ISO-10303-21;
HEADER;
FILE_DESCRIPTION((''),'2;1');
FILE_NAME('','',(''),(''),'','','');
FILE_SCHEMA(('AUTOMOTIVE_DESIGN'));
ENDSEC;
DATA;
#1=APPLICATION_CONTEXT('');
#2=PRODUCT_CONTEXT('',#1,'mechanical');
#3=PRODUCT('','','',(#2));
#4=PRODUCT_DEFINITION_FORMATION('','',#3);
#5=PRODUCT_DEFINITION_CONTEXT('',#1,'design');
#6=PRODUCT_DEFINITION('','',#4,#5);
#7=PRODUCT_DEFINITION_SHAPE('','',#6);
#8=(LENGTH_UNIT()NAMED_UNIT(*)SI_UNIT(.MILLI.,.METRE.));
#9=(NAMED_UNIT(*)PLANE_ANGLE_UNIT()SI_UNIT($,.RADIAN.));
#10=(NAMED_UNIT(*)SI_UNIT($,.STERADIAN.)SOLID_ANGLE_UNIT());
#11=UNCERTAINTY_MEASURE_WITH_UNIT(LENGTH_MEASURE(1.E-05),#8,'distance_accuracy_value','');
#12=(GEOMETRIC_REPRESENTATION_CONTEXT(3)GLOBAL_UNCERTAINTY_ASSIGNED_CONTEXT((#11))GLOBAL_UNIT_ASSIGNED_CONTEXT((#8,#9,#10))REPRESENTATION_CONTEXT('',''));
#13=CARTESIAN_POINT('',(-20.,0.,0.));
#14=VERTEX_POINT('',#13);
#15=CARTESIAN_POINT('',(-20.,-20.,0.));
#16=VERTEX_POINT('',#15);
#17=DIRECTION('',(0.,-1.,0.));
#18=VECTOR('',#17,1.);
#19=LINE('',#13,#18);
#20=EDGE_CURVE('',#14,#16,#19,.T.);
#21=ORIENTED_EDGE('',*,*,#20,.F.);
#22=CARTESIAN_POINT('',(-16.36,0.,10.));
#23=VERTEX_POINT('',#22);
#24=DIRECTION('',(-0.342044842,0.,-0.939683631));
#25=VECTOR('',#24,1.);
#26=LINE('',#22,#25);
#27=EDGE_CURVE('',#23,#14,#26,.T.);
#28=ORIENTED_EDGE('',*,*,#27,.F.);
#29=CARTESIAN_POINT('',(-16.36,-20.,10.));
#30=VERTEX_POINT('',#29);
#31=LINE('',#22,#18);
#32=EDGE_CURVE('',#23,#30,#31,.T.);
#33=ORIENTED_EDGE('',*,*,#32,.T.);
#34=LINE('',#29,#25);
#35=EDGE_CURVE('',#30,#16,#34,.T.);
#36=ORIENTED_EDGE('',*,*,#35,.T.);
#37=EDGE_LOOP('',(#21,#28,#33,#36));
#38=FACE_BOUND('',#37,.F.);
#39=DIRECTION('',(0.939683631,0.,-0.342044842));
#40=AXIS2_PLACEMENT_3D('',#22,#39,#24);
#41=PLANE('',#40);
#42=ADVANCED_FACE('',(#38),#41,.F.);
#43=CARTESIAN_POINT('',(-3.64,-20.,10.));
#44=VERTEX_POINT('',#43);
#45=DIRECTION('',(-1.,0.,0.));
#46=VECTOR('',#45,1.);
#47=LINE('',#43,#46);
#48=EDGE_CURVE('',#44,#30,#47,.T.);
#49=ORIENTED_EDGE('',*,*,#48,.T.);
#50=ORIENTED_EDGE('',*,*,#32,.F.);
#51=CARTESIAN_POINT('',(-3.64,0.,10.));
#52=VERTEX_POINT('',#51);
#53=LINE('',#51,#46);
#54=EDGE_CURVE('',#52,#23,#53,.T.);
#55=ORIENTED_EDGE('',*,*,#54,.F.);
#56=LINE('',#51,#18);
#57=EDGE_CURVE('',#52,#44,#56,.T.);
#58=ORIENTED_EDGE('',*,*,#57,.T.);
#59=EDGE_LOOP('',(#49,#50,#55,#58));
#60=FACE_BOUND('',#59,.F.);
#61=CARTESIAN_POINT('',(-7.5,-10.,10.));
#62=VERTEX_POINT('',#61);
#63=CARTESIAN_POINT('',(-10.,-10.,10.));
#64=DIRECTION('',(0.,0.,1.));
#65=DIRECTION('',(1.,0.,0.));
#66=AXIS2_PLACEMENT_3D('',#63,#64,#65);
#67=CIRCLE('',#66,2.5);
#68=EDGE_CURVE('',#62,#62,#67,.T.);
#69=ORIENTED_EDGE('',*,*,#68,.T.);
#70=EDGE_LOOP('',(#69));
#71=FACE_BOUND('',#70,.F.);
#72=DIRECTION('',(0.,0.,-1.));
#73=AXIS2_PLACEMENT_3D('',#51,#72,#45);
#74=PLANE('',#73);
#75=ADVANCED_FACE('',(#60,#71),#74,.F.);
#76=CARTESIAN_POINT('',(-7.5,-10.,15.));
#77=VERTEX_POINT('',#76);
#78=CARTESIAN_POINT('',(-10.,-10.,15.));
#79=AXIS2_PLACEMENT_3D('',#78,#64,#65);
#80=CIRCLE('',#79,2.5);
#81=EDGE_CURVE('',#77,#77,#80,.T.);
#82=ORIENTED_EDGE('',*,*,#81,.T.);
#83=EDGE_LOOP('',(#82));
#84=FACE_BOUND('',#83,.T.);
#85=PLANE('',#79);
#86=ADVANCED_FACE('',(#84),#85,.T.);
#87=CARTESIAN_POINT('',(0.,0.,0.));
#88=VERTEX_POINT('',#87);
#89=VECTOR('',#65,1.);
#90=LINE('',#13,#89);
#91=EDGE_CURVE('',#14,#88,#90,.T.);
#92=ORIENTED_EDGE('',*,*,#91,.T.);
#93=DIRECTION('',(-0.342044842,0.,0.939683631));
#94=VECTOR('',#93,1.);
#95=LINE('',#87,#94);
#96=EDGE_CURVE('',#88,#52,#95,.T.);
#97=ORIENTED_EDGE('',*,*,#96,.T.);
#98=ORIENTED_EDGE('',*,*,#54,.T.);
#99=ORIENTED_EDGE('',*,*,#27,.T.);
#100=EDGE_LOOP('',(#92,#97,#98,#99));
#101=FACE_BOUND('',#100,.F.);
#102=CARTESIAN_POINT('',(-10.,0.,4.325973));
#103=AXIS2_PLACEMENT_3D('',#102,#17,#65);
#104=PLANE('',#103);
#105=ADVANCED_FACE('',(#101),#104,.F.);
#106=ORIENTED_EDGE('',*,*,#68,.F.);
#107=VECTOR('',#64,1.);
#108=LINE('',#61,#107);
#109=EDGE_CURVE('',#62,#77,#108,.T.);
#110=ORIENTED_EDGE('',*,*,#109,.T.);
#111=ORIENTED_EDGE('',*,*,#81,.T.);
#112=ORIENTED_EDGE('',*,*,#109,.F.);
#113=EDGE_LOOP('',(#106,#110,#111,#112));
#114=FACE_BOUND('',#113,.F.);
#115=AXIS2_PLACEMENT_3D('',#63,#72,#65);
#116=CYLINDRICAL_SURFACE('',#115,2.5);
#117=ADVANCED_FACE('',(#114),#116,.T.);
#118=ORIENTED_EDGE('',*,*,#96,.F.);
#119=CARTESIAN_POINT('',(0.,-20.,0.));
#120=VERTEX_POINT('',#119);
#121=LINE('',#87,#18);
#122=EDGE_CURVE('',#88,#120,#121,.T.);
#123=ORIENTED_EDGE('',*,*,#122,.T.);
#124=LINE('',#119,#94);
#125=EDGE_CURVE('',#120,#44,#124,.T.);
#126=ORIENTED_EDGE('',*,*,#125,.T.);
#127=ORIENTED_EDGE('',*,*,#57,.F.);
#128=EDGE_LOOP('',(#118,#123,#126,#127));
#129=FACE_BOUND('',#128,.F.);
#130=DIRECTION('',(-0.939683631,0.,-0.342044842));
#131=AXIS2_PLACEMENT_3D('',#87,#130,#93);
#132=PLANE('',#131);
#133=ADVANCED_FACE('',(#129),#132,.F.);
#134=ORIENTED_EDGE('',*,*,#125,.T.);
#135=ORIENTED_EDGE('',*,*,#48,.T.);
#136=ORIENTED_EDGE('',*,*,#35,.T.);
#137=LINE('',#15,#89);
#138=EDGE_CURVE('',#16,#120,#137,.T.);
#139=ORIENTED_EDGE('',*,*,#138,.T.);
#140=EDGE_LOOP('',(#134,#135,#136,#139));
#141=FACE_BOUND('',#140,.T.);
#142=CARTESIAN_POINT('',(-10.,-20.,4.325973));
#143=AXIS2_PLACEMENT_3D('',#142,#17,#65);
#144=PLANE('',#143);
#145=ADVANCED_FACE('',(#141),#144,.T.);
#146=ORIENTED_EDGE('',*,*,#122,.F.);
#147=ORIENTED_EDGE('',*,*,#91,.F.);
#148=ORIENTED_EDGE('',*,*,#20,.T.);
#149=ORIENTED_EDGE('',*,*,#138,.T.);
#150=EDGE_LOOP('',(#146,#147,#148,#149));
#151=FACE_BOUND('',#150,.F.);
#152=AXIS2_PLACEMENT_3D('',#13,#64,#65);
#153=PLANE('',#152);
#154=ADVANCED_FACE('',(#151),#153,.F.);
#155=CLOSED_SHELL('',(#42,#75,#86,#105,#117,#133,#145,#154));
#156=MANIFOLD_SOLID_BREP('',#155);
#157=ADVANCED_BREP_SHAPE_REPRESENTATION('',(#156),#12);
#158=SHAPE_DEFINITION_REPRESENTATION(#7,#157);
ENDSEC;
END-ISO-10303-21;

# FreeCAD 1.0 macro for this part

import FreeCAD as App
import Part
import Sketcher

doc = App.newDocument("Part")
body = doc.addObject("PartDesign::Body", "Body")

sketch1 = body.newObject("Sketcher::SketchObject", "Sketch")
sketch1.AttachmentSupport = (doc.getObject("XZ_Plane"), [""])
sketch1.MapMode = "FlatFace"
sketch1.addGeometry([
    Part.LineSegment(App.Vector(-20, 0, 0), App.Vector(0, 0, 0)),
    Part.LineSegment(App.Vector(0, 0, 0), App.Vector(-4, 10, 0)),
    Part.LineSegment(App.Vector(-4, 10, 0), App.Vector(-16, 10, 0)),
    Part.LineSegment(App.Vector(-16, 10, 0), App.Vector(-20, 0, 0)),
], False)
sketch1.addConstraint([
    Sketcher.Constraint("Coincident", 0, 2, 1, 1),
    Sketcher.Constraint("Coincident", 1, 2, 2, 1),
    Sketcher.Constraint("Coincident", 2, 2, 3, 1),
    Sketcher.Constraint("Coincident", 3, 2, 0, 1),
    Sketcher.Constraint("Horizontal", 0),
    Sketcher.Constraint("Horizontal", 2),
    Sketcher.Constraint("Coincident", 0, 2, -1, 1),
    Sketcher.Constraint("Equal", 1, 3),
    Sketcher.Constraint("DistanceX", 0, 1, 0, 2, 20.0),
    Sketcher.Constraint("DistanceY", -1, 1, 1, 2, 10.0),
    Sketcher.Constraint("DistanceX", 2, 2, 2, 1, 12.72),
])
pad1 = body.newObject("PartDesign::Pad", "Pad")
pad1.Profile = sketch1
pad1.Length = 20

sketch2 = body.newObject("Sketcher::SketchObject", "Sketch001")
sketch2.AttachmentSupport = (doc.getObject("XY_Plane"), [""])
sketch2.MapMode = "FlatFace"
sketch2.AttachmentOffset = App.Placement(App.Vector(0, 0, 10), App.Rotation())
sketch2.addGeometry(Part.Circle(App.Vector(-10, -10, 0), App.Vector(0, 0, 1), 2.5), False)
sketch2.addConstraint([
    Sketcher.Constraint("Diameter", 0, 5.0),
    Sketcher.Constraint("DistanceX", 0, 3, -1, 1, 10.0),
    Sketcher.Constraint("DistanceY", 0, 3, -1, 1, 10.0),
])
pad2 = body.newObject("PartDesign::Pad", "Pad001")
pad2.Profile = sketch2
pad2.Length = 5

doc.recompute()
